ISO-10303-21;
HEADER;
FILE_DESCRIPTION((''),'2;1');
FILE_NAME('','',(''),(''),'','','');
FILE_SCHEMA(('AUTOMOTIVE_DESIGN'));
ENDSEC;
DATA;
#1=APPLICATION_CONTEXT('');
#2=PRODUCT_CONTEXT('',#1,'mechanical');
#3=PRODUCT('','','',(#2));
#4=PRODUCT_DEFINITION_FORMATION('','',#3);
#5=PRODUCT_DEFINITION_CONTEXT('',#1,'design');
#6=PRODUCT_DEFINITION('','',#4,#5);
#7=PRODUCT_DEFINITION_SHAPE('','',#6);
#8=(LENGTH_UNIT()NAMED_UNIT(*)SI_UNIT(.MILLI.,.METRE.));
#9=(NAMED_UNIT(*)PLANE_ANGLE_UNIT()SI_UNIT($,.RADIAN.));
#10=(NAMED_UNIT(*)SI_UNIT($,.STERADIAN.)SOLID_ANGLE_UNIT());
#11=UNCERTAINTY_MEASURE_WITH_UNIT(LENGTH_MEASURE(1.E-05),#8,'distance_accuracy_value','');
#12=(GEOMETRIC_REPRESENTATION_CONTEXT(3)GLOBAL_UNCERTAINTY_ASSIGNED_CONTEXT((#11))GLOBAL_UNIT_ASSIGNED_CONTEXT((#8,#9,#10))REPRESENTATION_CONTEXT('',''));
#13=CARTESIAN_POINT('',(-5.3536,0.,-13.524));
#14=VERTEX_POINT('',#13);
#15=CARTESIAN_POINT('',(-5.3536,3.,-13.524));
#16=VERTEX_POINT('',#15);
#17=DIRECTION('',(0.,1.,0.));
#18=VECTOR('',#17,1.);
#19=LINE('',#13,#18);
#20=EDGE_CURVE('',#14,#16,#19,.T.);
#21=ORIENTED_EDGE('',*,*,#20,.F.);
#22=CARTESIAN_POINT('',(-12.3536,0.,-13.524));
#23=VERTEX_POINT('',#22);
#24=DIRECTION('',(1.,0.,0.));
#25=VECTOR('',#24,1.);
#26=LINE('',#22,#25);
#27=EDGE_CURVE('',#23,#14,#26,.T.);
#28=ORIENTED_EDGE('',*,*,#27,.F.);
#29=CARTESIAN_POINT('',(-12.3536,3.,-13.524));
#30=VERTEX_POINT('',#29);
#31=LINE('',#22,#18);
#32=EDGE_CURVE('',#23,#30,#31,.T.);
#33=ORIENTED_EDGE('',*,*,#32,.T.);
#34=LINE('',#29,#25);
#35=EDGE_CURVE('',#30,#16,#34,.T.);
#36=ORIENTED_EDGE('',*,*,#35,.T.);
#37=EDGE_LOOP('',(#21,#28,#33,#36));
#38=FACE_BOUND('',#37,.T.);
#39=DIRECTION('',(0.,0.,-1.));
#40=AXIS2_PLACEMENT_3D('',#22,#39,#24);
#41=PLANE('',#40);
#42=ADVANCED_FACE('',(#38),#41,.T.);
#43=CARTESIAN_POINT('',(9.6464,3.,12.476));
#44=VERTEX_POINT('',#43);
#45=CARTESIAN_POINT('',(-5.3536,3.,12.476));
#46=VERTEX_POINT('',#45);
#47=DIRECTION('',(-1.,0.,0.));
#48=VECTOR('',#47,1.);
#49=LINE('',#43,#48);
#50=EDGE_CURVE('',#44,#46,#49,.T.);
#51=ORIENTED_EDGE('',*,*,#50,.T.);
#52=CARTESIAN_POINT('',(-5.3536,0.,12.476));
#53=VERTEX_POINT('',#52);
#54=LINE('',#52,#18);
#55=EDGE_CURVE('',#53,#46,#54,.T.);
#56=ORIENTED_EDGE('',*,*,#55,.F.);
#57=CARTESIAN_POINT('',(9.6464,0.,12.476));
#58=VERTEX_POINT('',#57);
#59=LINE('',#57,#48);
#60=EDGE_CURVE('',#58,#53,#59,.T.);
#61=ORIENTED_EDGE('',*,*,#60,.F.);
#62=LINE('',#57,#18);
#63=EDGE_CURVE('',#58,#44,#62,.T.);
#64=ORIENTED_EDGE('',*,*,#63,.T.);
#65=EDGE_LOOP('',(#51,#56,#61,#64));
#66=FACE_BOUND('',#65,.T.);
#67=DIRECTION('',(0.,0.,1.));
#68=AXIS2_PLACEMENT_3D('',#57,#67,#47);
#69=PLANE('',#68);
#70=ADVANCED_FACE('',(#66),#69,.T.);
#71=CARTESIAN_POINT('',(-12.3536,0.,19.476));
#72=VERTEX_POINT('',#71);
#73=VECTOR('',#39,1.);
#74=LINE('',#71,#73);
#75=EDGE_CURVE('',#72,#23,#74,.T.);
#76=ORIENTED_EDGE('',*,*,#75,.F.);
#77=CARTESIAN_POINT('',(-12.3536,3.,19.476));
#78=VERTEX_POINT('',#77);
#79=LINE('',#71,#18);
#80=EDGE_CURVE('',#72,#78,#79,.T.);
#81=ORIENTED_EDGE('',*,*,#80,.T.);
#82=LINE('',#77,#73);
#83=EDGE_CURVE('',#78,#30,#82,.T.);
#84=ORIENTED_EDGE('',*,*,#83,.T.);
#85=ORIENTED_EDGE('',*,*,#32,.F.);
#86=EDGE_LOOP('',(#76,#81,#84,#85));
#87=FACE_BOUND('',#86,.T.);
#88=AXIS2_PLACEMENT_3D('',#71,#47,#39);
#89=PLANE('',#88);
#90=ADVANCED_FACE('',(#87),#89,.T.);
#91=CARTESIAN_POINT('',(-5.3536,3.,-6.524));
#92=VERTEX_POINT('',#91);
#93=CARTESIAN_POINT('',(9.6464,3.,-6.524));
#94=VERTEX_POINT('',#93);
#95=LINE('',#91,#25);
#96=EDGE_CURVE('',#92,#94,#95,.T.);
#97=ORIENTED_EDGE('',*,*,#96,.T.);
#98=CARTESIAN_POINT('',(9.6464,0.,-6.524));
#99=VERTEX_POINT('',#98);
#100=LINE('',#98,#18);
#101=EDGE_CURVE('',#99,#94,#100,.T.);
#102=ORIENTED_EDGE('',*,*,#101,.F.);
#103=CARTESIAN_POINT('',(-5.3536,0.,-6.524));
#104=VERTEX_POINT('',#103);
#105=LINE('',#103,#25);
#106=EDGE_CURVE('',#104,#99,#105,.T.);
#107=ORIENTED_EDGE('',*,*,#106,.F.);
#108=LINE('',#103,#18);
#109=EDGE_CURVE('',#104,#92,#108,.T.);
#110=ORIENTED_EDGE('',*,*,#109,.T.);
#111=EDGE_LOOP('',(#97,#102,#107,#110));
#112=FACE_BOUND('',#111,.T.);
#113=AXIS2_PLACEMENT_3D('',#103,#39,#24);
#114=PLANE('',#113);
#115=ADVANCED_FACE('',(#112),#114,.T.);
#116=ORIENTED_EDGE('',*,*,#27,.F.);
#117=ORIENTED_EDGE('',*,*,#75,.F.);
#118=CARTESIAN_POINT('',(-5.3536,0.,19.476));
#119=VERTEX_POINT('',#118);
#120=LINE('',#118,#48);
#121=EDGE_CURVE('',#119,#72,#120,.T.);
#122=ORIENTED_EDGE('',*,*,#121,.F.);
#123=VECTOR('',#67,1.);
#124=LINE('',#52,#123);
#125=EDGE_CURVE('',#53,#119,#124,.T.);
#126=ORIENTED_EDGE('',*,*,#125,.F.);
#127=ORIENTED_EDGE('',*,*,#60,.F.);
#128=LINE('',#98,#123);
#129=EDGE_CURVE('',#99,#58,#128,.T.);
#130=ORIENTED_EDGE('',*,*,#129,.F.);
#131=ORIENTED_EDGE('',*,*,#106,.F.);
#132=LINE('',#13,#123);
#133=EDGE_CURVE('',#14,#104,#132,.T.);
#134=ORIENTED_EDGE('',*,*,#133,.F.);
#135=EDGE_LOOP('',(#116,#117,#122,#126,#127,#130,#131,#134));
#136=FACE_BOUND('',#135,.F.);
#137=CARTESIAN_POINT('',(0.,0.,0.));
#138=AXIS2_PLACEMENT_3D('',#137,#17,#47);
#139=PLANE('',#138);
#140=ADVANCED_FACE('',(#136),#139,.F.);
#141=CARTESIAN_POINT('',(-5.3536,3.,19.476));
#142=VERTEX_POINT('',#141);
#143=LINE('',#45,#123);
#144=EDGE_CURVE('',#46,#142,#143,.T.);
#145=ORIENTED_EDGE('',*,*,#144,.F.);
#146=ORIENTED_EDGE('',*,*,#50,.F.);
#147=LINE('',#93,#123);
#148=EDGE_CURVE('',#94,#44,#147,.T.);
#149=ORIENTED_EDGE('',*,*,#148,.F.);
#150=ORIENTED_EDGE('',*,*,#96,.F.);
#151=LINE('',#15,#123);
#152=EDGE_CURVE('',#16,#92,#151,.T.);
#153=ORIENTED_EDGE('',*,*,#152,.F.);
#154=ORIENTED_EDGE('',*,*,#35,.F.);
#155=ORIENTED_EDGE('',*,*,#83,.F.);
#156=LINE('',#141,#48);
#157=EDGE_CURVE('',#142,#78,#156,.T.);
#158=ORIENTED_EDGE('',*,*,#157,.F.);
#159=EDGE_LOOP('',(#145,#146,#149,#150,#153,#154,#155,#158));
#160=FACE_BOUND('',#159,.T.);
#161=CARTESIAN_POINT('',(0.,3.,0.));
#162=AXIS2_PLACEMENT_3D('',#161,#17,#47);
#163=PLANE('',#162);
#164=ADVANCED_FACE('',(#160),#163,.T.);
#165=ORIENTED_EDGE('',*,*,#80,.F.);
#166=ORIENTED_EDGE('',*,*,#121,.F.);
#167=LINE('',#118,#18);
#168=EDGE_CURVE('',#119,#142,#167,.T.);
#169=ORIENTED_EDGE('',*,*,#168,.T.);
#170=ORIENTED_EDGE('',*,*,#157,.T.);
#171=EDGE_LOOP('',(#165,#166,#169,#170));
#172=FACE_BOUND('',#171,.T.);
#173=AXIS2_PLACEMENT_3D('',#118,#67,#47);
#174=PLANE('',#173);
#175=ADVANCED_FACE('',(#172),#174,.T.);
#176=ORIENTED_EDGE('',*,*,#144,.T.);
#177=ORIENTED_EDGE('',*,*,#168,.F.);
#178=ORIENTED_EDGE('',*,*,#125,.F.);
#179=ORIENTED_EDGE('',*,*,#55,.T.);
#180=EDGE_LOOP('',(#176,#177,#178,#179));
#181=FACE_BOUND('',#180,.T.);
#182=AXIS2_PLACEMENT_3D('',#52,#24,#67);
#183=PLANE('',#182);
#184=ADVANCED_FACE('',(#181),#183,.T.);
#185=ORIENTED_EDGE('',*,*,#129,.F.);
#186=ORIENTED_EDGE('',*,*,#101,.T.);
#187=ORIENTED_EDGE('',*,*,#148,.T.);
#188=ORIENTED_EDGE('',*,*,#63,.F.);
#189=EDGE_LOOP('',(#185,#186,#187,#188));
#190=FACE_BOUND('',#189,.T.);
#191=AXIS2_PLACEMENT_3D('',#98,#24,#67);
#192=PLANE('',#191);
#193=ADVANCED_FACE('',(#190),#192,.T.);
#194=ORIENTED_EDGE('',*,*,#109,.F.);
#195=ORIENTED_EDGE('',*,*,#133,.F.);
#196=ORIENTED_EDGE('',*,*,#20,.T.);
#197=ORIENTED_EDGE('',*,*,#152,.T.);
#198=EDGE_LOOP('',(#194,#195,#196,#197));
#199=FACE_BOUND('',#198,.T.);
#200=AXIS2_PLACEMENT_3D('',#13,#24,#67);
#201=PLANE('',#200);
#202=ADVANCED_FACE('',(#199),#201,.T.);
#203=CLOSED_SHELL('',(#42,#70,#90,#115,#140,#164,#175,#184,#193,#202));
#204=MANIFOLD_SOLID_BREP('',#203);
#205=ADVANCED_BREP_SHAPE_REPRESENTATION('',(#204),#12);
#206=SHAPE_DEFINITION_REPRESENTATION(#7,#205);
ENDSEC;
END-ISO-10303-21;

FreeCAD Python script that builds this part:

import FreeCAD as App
import Part
import Sketcher

V = App.Vector
Q = App.Units.Quantity


def add_polygon(sketch, points):
    """Adds a closed chain of lines whose ends are joined by coincident constraints."""
    first, n = sketch.GeometryCount, len(points)
    for a, b in zip(points, points[1:] + points[:1]):
        sketch.addGeometry(Part.LineSegment(App.Vector(*a, 0), App.Vector(*b, 0)), False)
    for i in range(n):
        sketch.addConstraint(Sketcher.Constraint("Coincident", first + i, 2, first + (i + 1) % n, 1))

doc = App.newDocument("Part")
body = doc.addObject("PartDesign::Body", "Body")

# Sketch on XZ plane
sketch1 = body.newObject("Sketcher::SketchObject", "Sketch")
sketch1.AttachmentSupport = (doc.getObject("XZ_Plane"), [""])
sketch1.MapMode = "FlatFace"
add_polygon(sketch1, [(-5, 12), (10, 12), (10, -7), (-5, -7), (-5, -14), (-12, -14), (-12, 19), (-5, 19)])  # lines 0-7
sketch1.addConstraint(Sketcher.Constraint("Horizontal", 0))
sketch1.addConstraint(Sketcher.Constraint("Vertical", 1))
sketch1.addConstraint(Sketcher.Constraint("Horizontal", 2))
sketch1.addConstraint(Sketcher.Constraint("Vertical", 3))
sketch1.addConstraint(Sketcher.Constraint("Horizontal", 4))
sketch1.addConstraint(Sketcher.Constraint("Vertical", 5))
sketch1.addConstraint(Sketcher.Constraint("Horizontal", 6))
sketch1.addConstraint(Sketcher.Constraint("Vertical", 7))
sketch1.addConstraint(Sketcher.Constraint("Vertical", 3, 2, 6, 2))
sketch1.addConstraint(Sketcher.Constraint("Equal", 6, 3))
sketch1.addConstraint(Sketcher.Constraint("Equal", 3, 7))
sketch1.addConstraint(Sketcher.Constraint("DistanceX", 0, 1, 0, 2, Q("15 mm")))
sketch1.addConstraint(Sketcher.Constraint("DistanceX", 4, 2, 4, 1, Q("7 mm")))
sketch1.addConstraint(Sketcher.Constraint("DistanceY", 1, 2, 1, 1, Q("19 mm")))
sketch1.addConstraint(Sketcher.Constraint("DistanceY", -1, 1, 0, 2, Q("12.476 mm")))
sketch1.addConstraint(Sketcher.Constraint("DistanceX", -1, 1, 0, 2, Q("9.6464 mm")))
pad1 = body.newObject("PartDesign::Pad", "Pad")
pad1.Profile = sketch1
pad1.Length = 3
pad1.Reversed = True

doc.recompute()
